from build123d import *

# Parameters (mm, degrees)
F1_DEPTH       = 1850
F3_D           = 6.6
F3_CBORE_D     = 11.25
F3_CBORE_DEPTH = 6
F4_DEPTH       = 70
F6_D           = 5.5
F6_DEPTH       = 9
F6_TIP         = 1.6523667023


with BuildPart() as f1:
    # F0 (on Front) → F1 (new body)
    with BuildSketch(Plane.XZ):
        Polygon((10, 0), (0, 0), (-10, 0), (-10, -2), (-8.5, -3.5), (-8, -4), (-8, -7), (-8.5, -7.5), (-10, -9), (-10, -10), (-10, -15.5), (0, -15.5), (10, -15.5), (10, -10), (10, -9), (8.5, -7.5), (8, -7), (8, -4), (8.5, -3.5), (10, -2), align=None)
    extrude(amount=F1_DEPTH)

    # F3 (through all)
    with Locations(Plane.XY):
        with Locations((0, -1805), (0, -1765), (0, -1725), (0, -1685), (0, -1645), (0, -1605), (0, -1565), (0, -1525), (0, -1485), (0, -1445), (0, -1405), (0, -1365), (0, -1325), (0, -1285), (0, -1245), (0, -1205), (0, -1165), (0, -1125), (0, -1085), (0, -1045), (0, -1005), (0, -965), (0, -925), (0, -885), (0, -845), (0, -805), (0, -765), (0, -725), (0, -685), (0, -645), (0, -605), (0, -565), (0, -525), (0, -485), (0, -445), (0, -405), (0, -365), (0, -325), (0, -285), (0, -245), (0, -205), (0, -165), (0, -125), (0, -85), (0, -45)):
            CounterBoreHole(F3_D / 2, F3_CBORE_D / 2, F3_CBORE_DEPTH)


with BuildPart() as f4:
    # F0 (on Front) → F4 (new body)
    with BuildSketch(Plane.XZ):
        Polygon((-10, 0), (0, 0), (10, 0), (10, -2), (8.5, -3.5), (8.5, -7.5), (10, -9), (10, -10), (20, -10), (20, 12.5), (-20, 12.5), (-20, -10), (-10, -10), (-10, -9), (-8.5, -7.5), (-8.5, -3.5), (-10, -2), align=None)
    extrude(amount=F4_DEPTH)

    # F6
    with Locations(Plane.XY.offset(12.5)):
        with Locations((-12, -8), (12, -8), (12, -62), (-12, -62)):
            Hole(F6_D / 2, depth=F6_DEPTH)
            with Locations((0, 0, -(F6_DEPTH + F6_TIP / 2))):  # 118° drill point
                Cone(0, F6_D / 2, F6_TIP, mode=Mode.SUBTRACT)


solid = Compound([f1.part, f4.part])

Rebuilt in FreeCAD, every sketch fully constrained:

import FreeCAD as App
import Part
import Sketcher
from FreeCAD import Vector
Q = App.Units.Quantity

doc = App.newDocument("Part")
params = doc.addObject("Spreadsheet::Sheet", "Params")
for row, (alias, value) in enumerate([
    ("sketch1_width", "20 mm"),
    ("sketch1_height", "2 mm"),
    ("sketch1_height2", "3 mm"),
    ("sketch1_height3", "6.5 mm"),
    ("pad1_length", "1850 mm"),
    ("sketch2_diameter", "6.6 mm"),
    ("hole_diameter", "6.6 mm"),
    ("hole_cbore_diameter", "11.25 mm"),
    ("hole_cbore_depth", "6 mm"),
    ("sketch3_width", "20 mm"),
    ("sketch3_width2", "10 mm"),
    ("sketch3_height", "2 mm"),
    ("sketch3_height2", "4 mm"),
    ("sketch3_height3", "1 mm"),
    ("pad2_length", "70 mm"),
    ("sketch4_diameter", "5.5 mm"),
    ("hole2_diameter", "5.5 mm"),
    ("hole2_depth", "9 mm"),
], start=1):
    params.set(f"A{row}", alias)
    params.set(f"B{row}", "=" + value)
    params.setAlias(f"B{row}", alias)

body = doc.addObject("PartDesign::Body", "Body")

sketch1 = body.newObject("Sketcher::SketchObject", "Sketch")
sketch1.AttachmentSupport = (doc.getObject("XZ_Plane"), [""])
sketch1.MapMode = "FlatFace"
sketch1.addGeometry(Part.LineSegment(Vector(10, 0, 0), Vector(-10, 0, 0)), False)
sketch1.addGeometry(Part.LineSegment(Vector(-10, 0, 0), Vector(-10, -2, 0)), False)
sketch1.addGeometry(Part.LineSegment(Vector(-10, -2, 0), Vector(-8, -4, 0)), False)
sketch1.addGeometry(Part.LineSegment(Vector(-8, -4, 0), Vector(-8, -7, 0)), False)
sketch1.addGeometry(Part.LineSegment(Vector(-8, -7, 0), Vector(-10, -9, 0)), False)
sketch1.addGeometry(Part.LineSegment(Vector(-10, -9, 0), Vector(-10, -15.5, 0)), False)
sketch1.addGeometry(Part.LineSegment(Vector(-10, -15.5, 0), Vector(10, -15.5, 0)), False)
sketch1.addGeometry(Part.LineSegment(Vector(10, -15.5, 0), Vector(10, -9, 0)), False)
sketch1.addGeometry(Part.LineSegment(Vector(10, -9, 0), Vector(8, -7, 0)), False)
sketch1.addGeometry(Part.LineSegment(Vector(8, -7, 0), Vector(8, -4, 0)), False)
sketch1.addGeometry(Part.LineSegment(Vector(8, -4, 0), Vector(10, -2, 0)), False)
sketch1.addGeometry(Part.LineSegment(Vector(10, -2, 0), Vector(10, 0, 0)), False)
sketch1.addConstraint(Sketcher.Constraint("Coincident", 0, 2, 1, 1))
sketch1.addConstraint(Sketcher.Constraint("Coincident", 1, 2, 2, 1))
sketch1.addConstraint(Sketcher.Constraint("Coincident", 2, 2, 3, 1))
sketch1.addConstraint(Sketcher.Constraint("Coincident", 3, 2, 4, 1))
sketch1.addConstraint(Sketcher.Constraint("Coincident", 4, 2, 5, 1))
sketch1.addConstraint(Sketcher.Constraint("Coincident", 5, 2, 6, 1))
sketch1.addConstraint(Sketcher.Constraint("Coincident", 6, 2, 7, 1))
sketch1.addConstraint(Sketcher.Constraint("Coincident", 7, 2, 8, 1))
sketch1.addConstraint(Sketcher.Constraint("Coincident", 8, 2, 9, 1))
sketch1.addConstraint(Sketcher.Constraint("Coincident", 9, 2, 10, 1))
sketch1.addConstraint(Sketcher.Constraint("Coincident", 10, 2, 11, 1))
sketch1.addConstraint(Sketcher.Constraint("Coincident", 11, 2, 0, 1))
sketch1.addConstraint(Sketcher.Constraint("Horizontal", 0))
sketch1.addConstraint(Sketcher.Constraint("Vertical", 1))
sketch1.addConstraint(Sketcher.Constraint("Vertical", 3))
sketch1.addConstraint(Sketcher.Constraint("Vertical", 5))
sketch1.addConstraint(Sketcher.Constraint("Horizontal", 6))
sketch1.addConstraint(Sketcher.Constraint("Vertical", 7))
sketch1.addConstraint(Sketcher.Constraint("Vertical", 9))
sketch1.addConstraint(Sketcher.Constraint("Vertical", 11))
sketch1.addConstraint(Sketcher.Constraint("Symmetric", 0, 2, 11, 2, -1, 1))
sketch1.addConstraint(Sketcher.Constraint("Symmetric", 4, 2, 7, 2, -2))
sketch1.addConstraint(Sketcher.Constraint("Symmetric", 3, 2, 8, 2, -2))
sketch1.addConstraint(Sketcher.Constraint("Perpendicular", 2, 4))
sketch1.addConstraint(Sketcher.Constraint("Perpendicular", 4, 8))
sketch1.addConstraint(Sketcher.Constraint("Perpendicular", 8, 10))
sketch1.addConstraint(Sketcher.Constraint("Horizontal", 2, 2, 9, 2))
sketch1.addConstraint(Sketcher.Constraint("Vertical", 1, 2, 4, 2))
sketch1.addConstraint(Sketcher.Constraint("DistanceX", 0, 2, 0, 1, Q("20 mm")))
sketch1.addConstraint(Sketcher.Constraint("DistanceY", 1, 2, 1, 1, Q("2 mm")))
sketch1.addConstraint(Sketcher.Constraint("DistanceY", 3, 2, 3, 1, Q("3 mm")))
sketch1.addConstraint(Sketcher.Constraint("DistanceY", 5, 2, 5, 1, Q("6.5 mm")))
sketch1.addConstraint(Sketcher.Constraint("DistanceX", 2, 2, -1, 1, Q("8 mm")))
sketch1.setExpression("Constraints[28]", "Params.sketch1_width")
sketch1.setExpression("Constraints[29]", "Params.sketch1_height")
sketch1.setExpression("Constraints[30]", "Params.sketch1_height2")
sketch1.setExpression("Constraints[31]", "Params.sketch1_height3")
pad1 = body.newObject("PartDesign::Pad", "Pad")
pad1.Profile = sketch1
pad1.setExpression("Length", "Params.pad1_length")

sketch2 = body.newObject("Sketcher::SketchObject", "Sketch001")
sketch2.AttachmentSupport = (doc.getObject("XY_Plane"), [""])
sketch2.MapMode = "FlatFace"
sketch2.addGeometry(Part.Circle(Vector(0, -1805, 0), Vector(0, 0, 1), 3.3), False)
sketch2.addGeometry(Part.Circle(Vector(0, -1765, 0), Vector(0, 0, 1), 3.3), False)
sketch2.addGeometry(Part.Circle(Vector(0, -1725, 0), Vector(0, 0, 1), 3.3), False)
sketch2.addGeometry(Part.Circle(Vector(0, -1685, 0), Vector(0, 0, 1), 3.3), False)
sketch2.addGeometry(Part.Circle(Vector(0, -1645, 0), Vector(0, 0, 1), 3.3), False)
sketch2.addGeometry(Part.Circle(Vector(0, -1605, 0), Vector(0, 0, 1), 3.3), False)
sketch2.addGeometry(Part.Circle(Vector(0, -1565, 0), Vector(0, 0, 1), 3.3), False)
sketch2.addGeometry(Part.Circle(Vector(0, -1525, 0), Vector(0, 0, 1), 3.3), False)
sketch2.addGeometry(Part.Circle(Vector(0, -1485, 0), Vector(0, 0, 1), 3.3), False)
sketch2.addGeometry(Part.Circle(Vector(0, -1445, 0), Vector(0, 0, 1), 3.3), False)
sketch2.addGeometry(Part.Circle(Vector(0, -1405, 0), Vector(0, 0, 1), 3.3), False)
sketch2.addGeometry(Part.Circle(Vector(0, -1365, 0), Vector(0, 0, 1), 3.3), False)
sketch2.addGeometry(Part.Circle(Vector(0, -1325, 0), Vector(0, 0, 1), 3.3), False)
sketch2.addGeometry(Part.Circle(Vector(0, -1285, 0), Vector(0, 0, 1), 3.3), False)
sketch2.addGeometry(Part.Circle(Vector(0, -1245, 0), Vector(0, 0, 1), 3.3), False)
sketch2.addGeometry(Part.Circle(Vector(0, -1205, 0), Vector(0, 0, 1), 3.3), False)
sketch2.addGeometry(Part.Circle(Vector(0, -1165, 0), Vector(0, 0, 1), 3.3), False)
sketch2.addGeometry(Part.Circle(Vector(0, -1125, 0), Vector(0, 0, 1), 3.3), False)
sketch2.addGeometry(Part.Circle(Vector(0, -1085, 0), Vector(0, 0, 1), 3.3), False)
sketch2.addGeometry(Part.Circle(Vector(0, -1045, 0), Vector(0, 0, 1), 3.3), False)
sketch2.addGeometry(Part.Circle(Vector(0, -1005, 0), Vector(0, 0, 1), 3.3), False)
sketch2.addGeometry(Part.Circle(Vector(0, -965, 0), Vector(0, 0, 1), 3.3), False)
sketch2.addGeometry(Part.Circle(Vector(0, -925, 0), Vector(0, 0, 1), 3.3), False)
sketch2.addGeometry(Part.Circle(Vector(0, -885, 0), Vector(0, 0, 1), 3.3), False)
sketch2.addGeometry(Part.Circle(Vector(0, -845, 0), Vector(0, 0, 1), 3.3), False)
sketch2.addGeometry(Part.Circle(Vector(0, -805, 0), Vector(0, 0, 1), 3.3), False)
sketch2.addGeometry(Part.Circle(Vector(0, -765, 0), Vector(0, 0, 1), 3.3), False)
sketch2.addGeometry(Part.Circle(Vector(0, -725, 0), Vector(0, 0, 1), 3.3), False)
sketch2.addGeometry(Part.Circle(Vector(0, -685, 0), Vector(0, 0, 1), 3.3), False)
sketch2.addGeometry(Part.Circle(Vector(0, -645, 0), Vector(0, 0, 1), 3.3), False)
sketch2.addGeometry(Part.Circle(Vector(0, -605, 0), Vector(0, 0, 1), 3.3), False)
sketch2.addGeometry(Part.Circle(Vector(0, -565, 0), Vector(0, 0, 1), 3.3), False)
sketch2.addGeometry(Part.Circle(Vector(0, -525, 0), Vector(0, 0, 1), 3.3), False)
sketch2.addGeometry(Part.Circle(Vector(0, -485, 0), Vector(0, 0, 1), 3.3), False)
sketch2.addGeometry(Part.Circle(Vector(0, -445, 0), Vector(0, 0, 1), 3.3), False)
sketch2.addGeometry(Part.Circle(Vector(0, -405, 0), Vector(0, 0, 1), 3.3), False)
sketch2.addGeometry(Part.Circle(Vector(0, -365, 0), Vector(0, 0, 1), 3.3), False)
sketch2.addGeometry(Part.Circle(Vector(0, -325, 0), Vector(0, 0, 1), 3.3), False)
sketch2.addGeometry(Part.Circle(Vector(0, -285, 0), Vector(0, 0, 1), 3.3), False)
sketch2.addGeometry(Part.Circle(Vector(0, -245, 0), Vector(0, 0, 1), 3.3), False)
sketch2.addGeometry(Part.Circle(Vector(0, -205, 0), Vector(0, 0, 1), 3.3), False)
sketch2.addGeometry(Part.Circle(Vector(0, -165, 0), Vector(0, 0, 1), 3.3), False)
sketch2.addGeometry(Part.Circle(Vector(0, -125, 0), Vector(0, 0, 1), 3.3), False)
sketch2.addGeometry(Part.Circle(Vector(0, -85, 0), Vector(0, 0, 1), 3.3), False)
sketch2.addGeometry(Part.Circle(Vector(0, -45, 0), Vector(0, 0, 1), 3.3), False)
sketch2.addConstraint(Sketcher.Constraint("Equal", 0, 1))
sketch2.addConstraint(Sketcher.Constraint("Equal", 1, 2))
sketch2.addConstraint(Sketcher.Constraint("Equal", 2, 3))
sketch2.addConstraint(Sketcher.Constraint("Equal", 3, 4))
sketch2.addConstraint(Sketcher.Constraint("Equal", 4, 5))
sketch2.addConstraint(Sketcher.Constraint("Equal", 5, 6))
sketch2.addConstraint(Sketcher.Constraint("Equal", 6, 7))
sketch2.addConstraint(Sketcher.Constraint("Equal", 7, 8))
sketch2.addConstraint(Sketcher.Constraint("Equal", 8, 9))
sketch2.addConstraint(Sketcher.Constraint("Equal", 9, 10))
sketch2.addConstraint(Sketcher.Constraint("Equal", 10, 11))
sketch2.addConstraint(Sketcher.Constraint("Equal", 11, 12))
sketch2.addConstraint(Sketcher.Constraint("Equal", 12, 13))
sketch2.addConstraint(Sketcher.Constraint("Equal", 13, 14))
sketch2.addConstraint(Sketcher.Constraint("Equal", 14, 15))
sketch2.addConstraint(Sketcher.Constraint("Equal", 15, 16))
sketch2.addConstraint(Sketcher.Constraint("Equal", 16, 17))
sketch2.addConstraint(Sketcher.Constraint("Equal", 17, 18))
sketch2.addConstraint(Sketcher.Constraint("Equal", 18, 19))
sketch2.addConstraint(Sketcher.Constraint("Equal", 19, 20))
sketch2.addConstraint(Sketcher.Constraint("Equal", 20, 21))
sketch2.addConstraint(Sketcher.Constraint("Equal", 21, 22))
sketch2.addConstraint(Sketcher.Constraint("Equal", 22, 23))
sketch2.addConstraint(Sketcher.Constraint("Equal", 23, 24))
sketch2.addConstraint(Sketcher.Constraint("Equal", 24, 25))
sketch2.addConstraint(Sketcher.Constraint("Equal", 25, 26))
sketch2.addConstraint(Sketcher.Constraint("Equal", 26, 27))
sketch2.addConstraint(Sketcher.Constraint("Equal", 27, 28))
sketch2.addConstraint(Sketcher.Constraint("Equal", 28, 29))
sketch2.addConstraint(Sketcher.Constraint("Equal", 29, 30))
sketch2.addConstraint(Sketcher.Constraint("Equal", 30, 31))
sketch2.addConstraint(Sketcher.Constraint("Equal", 31, 32))
sketch2.addConstraint(Sketcher.Constraint("Equal", 32, 33))
sketch2.addConstraint(Sketcher.Constraint("Equal", 33, 34))
sketch2.addConstraint(Sketcher.Constraint("Equal", 34, 35))
sketch2.addConstraint(Sketcher.Constraint("Equal", 35, 36))
sketch2.addConstraint(Sketcher.Constraint("Equal", 36, 37))
sketch2.addConstraint(Sketcher.Constraint("Equal", 37, 38))
sketch2.addConstraint(Sketcher.Constraint("Equal", 38, 39))
sketch2.addConstraint(Sketcher.Constraint("Equal", 39, 40))
sketch2.addConstraint(Sketcher.Constraint("Equal", 40, 41))
sketch2.addConstraint(Sketcher.Constraint("Equal", 41, 42))
sketch2.addConstraint(Sketcher.Constraint("Equal", 42, 43))
sketch2.addConstraint(Sketcher.Constraint("Equal", 43, 44))
sketch2.addConstraint(Sketcher.Constraint("PointOnObject", 0, 3, -2))
sketch2.addConstraint(Sketcher.Constraint("PointOnObject", 1, 3, -2))
sketch2.addConstraint(Sketcher.Constraint("PointOnObject", 2, 3, -2))
sketch2.addConstraint(Sketcher.Constraint("PointOnObject", 3, 3, -2))
sketch2.addConstraint(Sketcher.Constraint("PointOnObject", 4, 3, -2))
sketch2.addConstraint(Sketcher.Constraint("PointOnObject", 5, 3, -2))
sketch2.addConstraint(Sketcher.Constraint("PointOnObject", 6, 3, -2))
sketch2.addConstraint(Sketcher.Constraint("PointOnObject", 7, 3, -2))
sketch2.addConstraint(Sketcher.Constraint("PointOnObject", 8, 3, -2))
sketch2.addConstraint(Sketcher.Constraint("PointOnObject", 9, 3, -2))
sketch2.addConstraint(Sketcher.Constraint("PointOnObject", 10, 3, -2))
sketch2.addConstraint(Sketcher.Constraint("PointOnObject", 11, 3, -2))
sketch2.addConstraint(Sketcher.Constraint("PointOnObject", 12, 3, -2))
sketch2.addConstraint(Sketcher.Constraint("PointOnObject", 13, 3, -2))
sketch2.addConstraint(Sketcher.Constraint("PointOnObject", 14, 3, -2))
sketch2.addConstraint(Sketcher.Constraint("PointOnObject", 15, 3, -2))
sketch2.addConstraint(Sketcher.Constraint("PointOnObject", 16, 3, -2))
sketch2.addConstraint(Sketcher.Constraint("PointOnObject", 17, 3, -2))
sketch2.addConstraint(Sketcher.Constraint("PointOnObject", 18, 3, -2))
sketch2.addConstraint(Sketcher.Constraint("PointOnObject", 19, 3, -2))
sketch2.addConstraint(Sketcher.Constraint("PointOnObject", 20, 3, -2))
sketch2.addConstraint(Sketcher.Constraint("PointOnObject", 21, 3, -2))
sketch2.addConstraint(Sketcher.Constraint("PointOnObject", 22, 3, -2))
sketch2.addConstraint(Sketcher.Constraint("PointOnObject", 23, 3, -2))
sketch2.addConstraint(Sketcher.Constraint("PointOnObject", 24, 3, -2))
sketch2.addConstraint(Sketcher.Constraint("PointOnObject", 25, 3, -2))
sketch2.addConstraint(Sketcher.Constraint("PointOnObject", 26, 3, -2))
sketch2.addConstraint(Sketcher.Constraint("PointOnObject", 27, 3, -2))
sketch2.addConstraint(Sketcher.Constraint("PointOnObject", 28, 3, -2))
sketch2.addConstraint(Sketcher.Constraint("PointOnObject", 29, 3, -2))
sketch2.addConstraint(Sketcher.Constraint("PointOnObject", 30, 3, -2))
sketch2.addConstraint(Sketcher.Constraint("PointOnObject", 31, 3, -2))
sketch2.addConstraint(Sketcher.Constraint("PointOnObject", 32, 3, -2))
sketch2.addConstraint(Sketcher.Constraint("PointOnObject", 33, 3, -2))
sketch2.addConstraint(Sketcher.Constraint("PointOnObject", 34, 3, -2))
sketch2.addConstraint(Sketcher.Constraint("PointOnObject", 35, 3, -2))
sketch2.addConstraint(Sketcher.Constraint("PointOnObject", 36, 3, -2))
sketch2.addConstraint(Sketcher.Constraint("PointOnObject", 37, 3, -2))
sketch2.addConstraint(Sketcher.Constraint("PointOnObject", 38, 3, -2))
sketch2.addConstraint(Sketcher.Constraint("PointOnObject", 39, 3, -2))
sketch2.addConstraint(Sketcher.Constraint("PointOnObject", 40, 3, -2))
sketch2.addConstraint(Sketcher.Constraint("PointOnObject", 41, 3, -2))
sketch2.addConstraint(Sketcher.Constraint("PointOnObject", 42, 3, -2))
sketch2.addConstraint(Sketcher.Constraint("PointOnObject", 43, 3, -2))
sketch2.addConstraint(Sketcher.Constraint("PointOnObject", 44, 3, -2))
sketch2.addConstraint(Sketcher.Constraint("Diameter", 0, Q("6.6 mm")))
sketch2.addConstraint(Sketcher.Constraint("DistanceY", 0, 3, -1, 1, Q("1805 mm")))
sketch2.addConstraint(Sketcher.Constraint("DistanceY", 1, 3, -1, 1, Q("1765 mm")))
sketch2.addConstraint(Sketcher.Constraint("DistanceY", 2, 3, -1, 1, Q("1725 mm")))
sketch2.addConstraint(Sketcher.Constraint("DistanceY", 3, 3, -1, 1, Q("1685 mm")))
sketch2.addConstraint(Sketcher.Constraint("DistanceY", 4, 3, -1, 1, Q("1645 mm")))
sketch2.addConstraint(Sketcher.Constraint("DistanceY", 5, 3, -1, 1, Q("1605 mm")))
sketch2.addConstraint(Sketcher.Constraint("DistanceY", 6, 3, -1, 1, Q("1565 mm")))
sketch2.addConstraint(Sketcher.Constraint("DistanceY", 7, 3, -1, 1, Q("1525 mm")))
sketch2.addConstraint(Sketcher.Constraint("DistanceY", 8, 3, -1, 1, Q("1485 mm")))
sketch2.addConstraint(Sketcher.Constraint("DistanceY", 9, 3, -1, 1, Q("1445 mm")))
sketch2.addConstraint(Sketcher.Constraint("DistanceY", 10, 3, -1, 1, Q("1405 mm")))
sketch2.addConstraint(Sketcher.Constraint("DistanceY", 11, 3, -1, 1, Q("1365 mm")))
sketch2.addConstraint(Sketcher.Constraint("DistanceY", 12, 3, -1, 1, Q("1325 mm")))
sketch2.addConstraint(Sketcher.Constraint("DistanceY", 13, 3, -1, 1, Q("1285 mm")))
sketch2.addConstraint(Sketcher.Constraint("DistanceY", 14, 3, -1, 1, Q("1245 mm")))
sketch2.addConstraint(Sketcher.Constraint("DistanceY", 15, 3, -1, 1, Q("1205 mm")))
sketch2.addConstraint(Sketcher.Constraint("DistanceY", 16, 3, -1, 1, Q("1165 mm")))
sketch2.addConstraint(Sketcher.Constraint("DistanceY", 17, 3, -1, 1, Q("1125 mm")))
sketch2.addConstraint(Sketcher.Constraint("DistanceY", 18, 3, -1, 1, Q("1085 mm")))
sketch2.addConstraint(Sketcher.Constraint("DistanceY", 19, 3, -1, 1, Q("1045 mm")))
sketch2.addConstraint(Sketcher.Constraint("DistanceY", 20, 3, -1, 1, Q("1005 mm")))
sketch2.addConstraint(Sketcher.Constraint("DistanceY", 21, 3, -1, 1, Q("965 mm")))
sketch2.addConstraint(Sketcher.Constraint("DistanceY", 22, 3, -1, 1, Q("925 mm")))
sketch2.addConstraint(Sketcher.Constraint("DistanceY", 23, 3, -1, 1, Q("885 mm")))
sketch2.addConstraint(Sketcher.Constraint("DistanceY", 24, 3, -1, 1, Q("845 mm")))
sketch2.addConstraint(Sketcher.Constraint("DistanceY", 25, 3, -1, 1, Q("805 mm")))
sketch2.addConstraint(Sketcher.Constraint("DistanceY", 26, 3, -1, 1, Q("765 mm")))
sketch2.addConstraint(Sketcher.Constraint("DistanceY", 27, 3, -1, 1, Q("725 mm")))
sketch2.addConstraint(Sketcher.Constraint("DistanceY", 28, 3, -1, 1, Q("685 mm")))
sketch2.addConstraint(Sketcher.Constraint("DistanceY", 29, 3, -1, 1, Q("645 mm")))
sketch2.addConstraint(Sketcher.Constraint("DistanceY", 30, 3, -1, 1, Q("605 mm")))
sketch2.addConstraint(Sketcher.Constraint("DistanceY", 31, 3, -1, 1, Q("565 mm")))
sketch2.addConstraint(Sketcher.Constraint("DistanceY", 32, 3, -1, 1, Q("525 mm")))
sketch2.addConstraint(Sketcher.Constraint("DistanceY", 33, 3, -1, 1, Q("485 mm")))
sketch2.addConstraint(Sketcher.Constraint("DistanceY", 34, 3, -1, 1, Q("445 mm")))
sketch2.addConstraint(Sketcher.Constraint("DistanceY", 35, 3, -1, 1, Q("405 mm")))
sketch2.addConstraint(Sketcher.Constraint("DistanceY", 36, 3, -1, 1, Q("365 mm")))
sketch2.addConstraint(Sketcher.Constraint("DistanceY", 37, 3, -1, 1, Q("325 mm")))
sketch2.addConstraint(Sketcher.Constraint("DistanceY", 38, 3, -1, 1, Q("285 mm")))
sketch2.addConstraint(Sketcher.Constraint("DistanceY", 39, 3, -1, 1, Q("245 mm")))
sketch2.addConstraint(Sketcher.Constraint("DistanceY", 40, 3, -1, 1, Q("205 mm")))
sketch2.addConstraint(Sketcher.Constraint("DistanceY", 41, 3, -1, 1, Q("165 mm")))
sketch2.addConstraint(Sketcher.Constraint("DistanceY", 42, 3, -1, 1, Q("125 mm")))
sketch2.addConstraint(Sketcher.Constraint("DistanceY", 43, 3, -1, 1, Q("85 mm")))
sketch2.addConstraint(Sketcher.Constraint("DistanceY", 44, 3, -1, 1, Q("45 mm")))
sketch2.setExpression("Constraints[89]", "Params.sketch2_diameter")
doc.recompute()
hole = body.newObject("PartDesign::Hole", "Hole")
hole.Profile = sketch2
hole.ThreadType = "None"
hole.setExpression("Diameter", "Params.hole_diameter")
hole.DepthType = "ThroughAll"
hole.HoleCutType = "Counterbore"
hole.setExpression("HoleCutDiameter", "Params.hole_cbore_diameter")
hole.setExpression("HoleCutDepth", "Params.hole_cbore_depth")
body2 = doc.addObject("PartDesign::Body", "Body001")

sketch3 = body2.newObject("Sketcher::SketchObject", "Sketch002")
sketch3.AttachmentSupport = (doc.getObject("XZ_Plane001"), [""])
sketch3.MapMode = "FlatFace"
sketch3.addGeometry(Part.LineSegment(Vector(-10, 0, 0), Vector(10, 0, 0)), False)
sketch3.addGeometry(Part.LineSegment(Vector(10, 0, 0), Vector(10, -2, 0)), False)
sketch3.addGeometry(Part.LineSegment(Vector(10, -2, 0), Vector(8.5, -3.5, 0)), False)
sketch3.addGeometry(Part.LineSegment(Vector(8.5, -3.5, 0), Vector(8.5, -7.5, 0)), False)
sketch3.addGeometry(Part.LineSegment(Vector(8.5, -7.5, 0), Vector(10, -9, 0)), False)
sketch3.addGeometry(Part.LineSegment(Vector(10, -9, 0), Vector(10, -10, 0)), False)
sketch3.addGeometry(Part.LineSegment(Vector(10, -10, 0), Vector(20, -10, 0)), False)
sketch3.addGeometry(Part.LineSegment(Vector(20, -10, 0), Vector(20, 12.5, 0)), False)
sketch3.addGeometry(Part.LineSegment(Vector(20, 12.5, 0), Vector(-20, 12.5, 0)), False)
sketch3.addGeometry(Part.LineSegment(Vector(-20, 12.5, 0), Vector(-20, -10, 0)), False)
sketch3.addGeometry(Part.LineSegment(Vector(-20, -10, 0), Vector(-10, -10, 0)), False)
sketch3.addGeometry(Part.LineSegment(Vector(-10, -10, 0), Vector(-10, -9, 0)), False)
sketch3.addGeometry(Part.LineSegment(Vector(-10, -9, 0), Vector(-8.5, -7.5, 0)), False)
sketch3.addGeometry(Part.LineSegment(Vector(-8.5, -7.5, 0), Vector(-8.5, -3.5, 0)), False)
sketch3.addGeometry(Part.LineSegment(Vector(-8.5, -3.5, 0), Vector(-10, -2, 0)), False)
sketch3.addGeometry(Part.LineSegment(Vector(-10, -2, 0), Vector(-10, 0, 0)), False)
sketch3.addConstraint(Sketcher.Constraint("Coincident", 0, 2, 1, 1))
sketch3.addConstraint(Sketcher.Constraint("Coincident", 1, 2, 2, 1))
sketch3.addConstraint(Sketcher.Constraint("Coincident", 2, 2, 3, 1))
sketch3.addConstraint(Sketcher.Constraint("Coincident", 3, 2, 4, 1))
sketch3.addConstraint(Sketcher.Constraint("Coincident", 4, 2, 5, 1))
sketch3.addConstraint(Sketcher.Constraint("Coincident", 5, 2, 6, 1))
sketch3.addConstraint(Sketcher.Constraint("Coincident", 6, 2, 7, 1))
sketch3.addConstraint(Sketcher.Constraint("Coincident", 7, 2, 8, 1))
sketch3.addConstraint(Sketcher.Constraint("Coincident", 8, 2, 9, 1))
sketch3.addConstraint(Sketcher.Constraint("Coincident", 9, 2, 10, 1))
sketch3.addConstraint(Sketcher.Constraint("Coincident", 10, 2, 11, 1))
sketch3.addConstraint(Sketcher.Constraint("Coincident", 11, 2, 12, 1))
sketch3.addConstraint(Sketcher.Constraint("Coincident", 12, 2, 13, 1))
sketch3.addConstraint(Sketcher.Constraint("Coincident", 13, 2, 14, 1))
sketch3.addConstraint(Sketcher.Constraint("Coincident", 14, 2, 15, 1))
sketch3.addConstraint(Sketcher.Constraint("Coincident", 15, 2, 0, 1))
sketch3.addConstraint(Sketcher.Constraint("Horizontal", 0))
sketch3.addConstraint(Sketcher.Constraint("Vertical", 1))
sketch3.addConstraint(Sketcher.Constraint("Vertical", 3))
sketch3.addConstraint(Sketcher.Constraint("Vertical", 5))
sketch3.addConstraint(Sketcher.Constraint("Horizontal", 6))
sketch3.addConstraint(Sketcher.Constraint("Vertical", 7))
sketch3.addConstraint(Sketcher.Constraint("Horizontal", 8))
sketch3.addConstraint(Sketcher.Constraint("Vertical", 9))
sketch3.addConstraint(Sketcher.Constraint("Horizontal", 10))
sketch3.addConstraint(Sketcher.Constraint("Vertical", 11))
sketch3.addConstraint(Sketcher.Constraint("Vertical", 13))
sketch3.addConstraint(Sketcher.Constraint("Vertical", 15))
sketch3.addConstraint(Sketcher.Constraint("Symmetric", 0, 2, 15, 2, -1, 1))
sketch3.addConstraint(Sketcher.Constraint("Symmetric", 6, 2, 9, 2, -2))
sketch3.addConstraint(Sketcher.Constraint("Symmetric", 4, 2, 11, 2, -2))
sketch3.addConstraint(Sketcher.Constraint("Symmetric", 3, 2, 12, 2, -2))
sketch3.addConstraint(Sketcher.Constraint("Perpendicular", 2, 4))
sketch3.addConstraint(Sketcher.Constraint("Perpendicular", 4, 12))
sketch3.addConstraint(Sketcher.Constraint("Perpendicular", 12, 14))
sketch3.addConstraint(Sketcher.Constraint("Horizontal", 2, 2, 13, 2))
sketch3.addConstraint(Sketcher.Constraint("Vertical", 1, 2, 4, 2))
sketch3.addConstraint(Sketcher.Constraint("DistanceX", 0, 1, 0, 2, Q("20 mm")))
sketch3.addConstraint(Sketcher.Constraint("DistanceX", 6, 1, 6, 2, Q("10 mm")))
sketch3.addConstraint(Sketcher.Constraint("DistanceY", 1, 2, 1, 1, Q("2 mm")))
sketch3.addConstraint(Sketcher.Constraint("DistanceY", 3, 2, 3, 1, Q("4 mm")))
sketch3.addConstraint(Sketcher.Constraint("DistanceY", 5, 2, 5, 1, Q("1 mm")))
sketch3.addConstraint(Sketcher.Constraint("DistanceY", 7, 1, 7, 2, Q("22.5 mm")))
sketch3.addConstraint(Sketcher.Constraint("DistanceY", 4, 2, -1, 1, Q("9 mm")))
sketch3.setExpression("Constraints[37]", "Params.sketch3_width")
sketch3.setExpression("Constraints[38]", "Params.sketch3_width2")
sketch3.setExpression("Constraints[39]", "Params.sketch3_height")
sketch3.setExpression("Constraints[40]", "Params.sketch3_height2")
sketch3.setExpression("Constraints[41]", "Params.sketch3_height3")
pad2 = body2.newObject("PartDesign::Pad", "Pad001")
pad2.Profile = sketch3
pad2.setExpression("Length", "Params.pad2_length")

sketch4 = body2.newObject("Sketcher::SketchObject", "Sketch003")
sketch4.AttachmentSupport = (doc.getObject("XY_Plane001"), [""])
sketch4.MapMode = "FlatFace"
sketch4.AttachmentOffset = App.Placement(Vector(0, 0, 12.5), App.Rotation())
sketch4.addGeometry(Part.Circle(Vector(-12, -8, 0), Vector(0, 0, 1), 2.75), False)
sketch4.addGeometry(Part.Circle(Vector(12, -8, 0), Vector(0, 0, 1), 2.75), False)
sketch4.addGeometry(Part.Circle(Vector(12, -62, 0), Vector(0, 0, 1), 2.75), False)
sketch4.addGeometry(Part.Circle(Vector(-12, -62, 0), Vector(0, 0, 1), 2.75), False)
sketch4.addConstraint(Sketcher.Constraint("Equal", 0, 1))
sketch4.addConstraint(Sketcher.Constraint("Equal", 1, 2))
sketch4.addConstraint(Sketcher.Constraint("Equal", 2, 3))
sketch4.addConstraint(Sketcher.Constraint("Symmetric", 0, 3, 1, 3, -2))
sketch4.addConstraint(Sketcher.Constraint("Symmetric", 2, 3, 3, 3, -2))
sketch4.addConstraint(Sketcher.Constraint("Vertical", 1, 3, 2, 3))
sketch4.addConstraint(Sketcher.Constraint("Diameter", 0, Q("5.5 mm")))
sketch4.addConstraint(Sketcher.Constraint("DistanceX", 0, 3, -1, 1, Q("12 mm")))
sketch4.addConstraint(Sketcher.Constraint("DistanceY", 0, 3, -1, 1, Q("8 mm")))
sketch4.addConstraint(Sketcher.Constraint("DistanceY", 2, 3, -1, 1, Q("62 mm")))
sketch4.setExpression("Constraints[6]", "Params.sketch4_diameter")
doc.recompute()
hole2 = body2.newObject("PartDesign::Hole", "Hole001")
hole2.Profile = sketch4
hole2.ThreadType = "None"
hole2.setExpression("Diameter", "Params.hole2_diameter")
hole2.DepthType = "Dimension"
hole2.setExpression("Depth", "Params.hole2_depth")
hole2.DrillPoint = "Angled"
hole2.DrillPointAngle = 118

doc.recompute()
